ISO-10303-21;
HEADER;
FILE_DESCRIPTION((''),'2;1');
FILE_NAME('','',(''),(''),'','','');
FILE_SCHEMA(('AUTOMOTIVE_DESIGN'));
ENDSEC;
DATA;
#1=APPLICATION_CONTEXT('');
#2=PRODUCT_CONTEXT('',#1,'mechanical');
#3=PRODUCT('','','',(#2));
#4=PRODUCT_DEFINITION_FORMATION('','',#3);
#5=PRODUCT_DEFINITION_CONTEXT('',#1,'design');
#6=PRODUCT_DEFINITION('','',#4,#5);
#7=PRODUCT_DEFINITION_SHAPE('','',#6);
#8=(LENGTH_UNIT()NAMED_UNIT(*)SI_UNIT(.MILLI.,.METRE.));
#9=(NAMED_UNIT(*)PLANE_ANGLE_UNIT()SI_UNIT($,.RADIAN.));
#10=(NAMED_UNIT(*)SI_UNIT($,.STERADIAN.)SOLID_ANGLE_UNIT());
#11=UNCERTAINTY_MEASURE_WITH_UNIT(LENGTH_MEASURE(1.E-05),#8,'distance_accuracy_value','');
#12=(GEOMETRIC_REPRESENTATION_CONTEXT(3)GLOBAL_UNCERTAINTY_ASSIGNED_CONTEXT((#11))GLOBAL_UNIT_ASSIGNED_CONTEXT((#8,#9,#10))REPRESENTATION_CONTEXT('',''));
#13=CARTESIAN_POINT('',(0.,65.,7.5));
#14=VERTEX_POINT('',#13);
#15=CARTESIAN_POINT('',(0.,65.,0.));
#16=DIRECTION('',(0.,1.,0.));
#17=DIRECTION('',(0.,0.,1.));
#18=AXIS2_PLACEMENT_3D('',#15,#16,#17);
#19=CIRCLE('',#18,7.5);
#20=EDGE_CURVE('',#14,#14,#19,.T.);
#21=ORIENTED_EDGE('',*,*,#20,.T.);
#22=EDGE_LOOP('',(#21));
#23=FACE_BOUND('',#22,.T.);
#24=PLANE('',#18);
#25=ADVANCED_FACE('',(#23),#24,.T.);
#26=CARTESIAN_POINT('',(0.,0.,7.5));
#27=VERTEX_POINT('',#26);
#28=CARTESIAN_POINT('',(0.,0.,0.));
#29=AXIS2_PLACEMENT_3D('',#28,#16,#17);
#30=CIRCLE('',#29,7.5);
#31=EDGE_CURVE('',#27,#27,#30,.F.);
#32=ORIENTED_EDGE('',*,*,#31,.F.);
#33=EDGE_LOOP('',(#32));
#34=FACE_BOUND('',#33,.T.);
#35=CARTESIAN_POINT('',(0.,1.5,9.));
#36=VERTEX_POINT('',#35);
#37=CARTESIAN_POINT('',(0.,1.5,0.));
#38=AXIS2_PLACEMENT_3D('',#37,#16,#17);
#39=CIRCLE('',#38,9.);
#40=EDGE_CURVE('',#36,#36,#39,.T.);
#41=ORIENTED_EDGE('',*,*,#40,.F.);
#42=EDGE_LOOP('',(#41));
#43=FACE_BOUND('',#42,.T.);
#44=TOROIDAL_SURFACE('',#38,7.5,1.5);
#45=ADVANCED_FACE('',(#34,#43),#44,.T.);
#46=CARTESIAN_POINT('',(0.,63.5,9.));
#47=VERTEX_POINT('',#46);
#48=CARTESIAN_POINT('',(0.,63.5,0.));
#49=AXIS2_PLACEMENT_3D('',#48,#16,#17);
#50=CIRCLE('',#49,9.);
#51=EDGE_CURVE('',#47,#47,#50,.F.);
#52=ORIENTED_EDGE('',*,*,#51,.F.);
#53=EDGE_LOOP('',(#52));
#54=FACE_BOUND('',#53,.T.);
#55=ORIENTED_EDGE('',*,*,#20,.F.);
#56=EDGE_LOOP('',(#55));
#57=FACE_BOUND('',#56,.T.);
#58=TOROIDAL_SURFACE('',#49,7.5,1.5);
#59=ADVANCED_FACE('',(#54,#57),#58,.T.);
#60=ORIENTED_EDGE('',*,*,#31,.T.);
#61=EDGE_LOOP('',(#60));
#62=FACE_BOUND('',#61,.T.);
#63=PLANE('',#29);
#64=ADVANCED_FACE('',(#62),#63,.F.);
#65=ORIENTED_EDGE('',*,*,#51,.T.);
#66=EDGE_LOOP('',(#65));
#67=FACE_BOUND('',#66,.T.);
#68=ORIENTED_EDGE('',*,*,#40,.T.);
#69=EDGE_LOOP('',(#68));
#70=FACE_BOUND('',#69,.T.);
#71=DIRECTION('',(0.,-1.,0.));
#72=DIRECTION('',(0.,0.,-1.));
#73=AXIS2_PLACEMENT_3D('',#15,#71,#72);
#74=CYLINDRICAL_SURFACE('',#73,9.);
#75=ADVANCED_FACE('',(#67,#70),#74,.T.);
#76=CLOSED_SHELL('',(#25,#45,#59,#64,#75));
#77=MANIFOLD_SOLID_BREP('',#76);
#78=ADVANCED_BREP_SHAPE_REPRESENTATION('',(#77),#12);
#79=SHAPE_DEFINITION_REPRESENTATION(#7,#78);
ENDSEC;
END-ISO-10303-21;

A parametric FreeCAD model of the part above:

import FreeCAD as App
import Part
import Sketcher
from FreeCAD import Vector
Q = App.Units.Quantity


def edges_at(feature, points):
    """Names of the edges that pass closest to the given points."""
    edges = feature.Shape.Edges
    near = lambda p: min(range(len(edges)), key=lambda i: edges[i].distToShape(Part.Vertex(*p))[0])
    return sorted({f"Edge{near(p) + 1}" for p in points})

doc = App.newDocument("Part")
body = doc.addObject("PartDesign::Body", "Body")

# Sketch on XZ plane
sketch1 = doc.addObject("Sketcher::SketchObject", "Sketch")
body.addObject(sketch1)
sketch1.AttachmentSupport = (doc.XZ_Plane, [""])
sketch1.MapMode = "FlatFace"
sketch1.addGeometry(Part.Circle(Vector(0, 0, 0), Vector(0, 0, 1), 9), False)
sketch1.addConstraint([
    Sketcher.Constraint("Coincident", 0, 3, -1, 1),
    Sketcher.Constraint("Diameter", 0, Q("18 mm")),
])
pad1 = doc.addObject("PartDesign::Pad", "Pad")
body.addObject(pad1)
pad1.Profile = sketch1
pad1.Length = 65
pad1.Reversed = True
doc.recompute()

fillet = doc.addObject("PartDesign::Fillet", "Fillet")
body.addObject(fillet)
fillet.Base = (pad1, edges_at(pad1, [(-9, 0, 0), (-9, 65, 0)]))
fillet.Radius = 1.5

doc.recompute()
